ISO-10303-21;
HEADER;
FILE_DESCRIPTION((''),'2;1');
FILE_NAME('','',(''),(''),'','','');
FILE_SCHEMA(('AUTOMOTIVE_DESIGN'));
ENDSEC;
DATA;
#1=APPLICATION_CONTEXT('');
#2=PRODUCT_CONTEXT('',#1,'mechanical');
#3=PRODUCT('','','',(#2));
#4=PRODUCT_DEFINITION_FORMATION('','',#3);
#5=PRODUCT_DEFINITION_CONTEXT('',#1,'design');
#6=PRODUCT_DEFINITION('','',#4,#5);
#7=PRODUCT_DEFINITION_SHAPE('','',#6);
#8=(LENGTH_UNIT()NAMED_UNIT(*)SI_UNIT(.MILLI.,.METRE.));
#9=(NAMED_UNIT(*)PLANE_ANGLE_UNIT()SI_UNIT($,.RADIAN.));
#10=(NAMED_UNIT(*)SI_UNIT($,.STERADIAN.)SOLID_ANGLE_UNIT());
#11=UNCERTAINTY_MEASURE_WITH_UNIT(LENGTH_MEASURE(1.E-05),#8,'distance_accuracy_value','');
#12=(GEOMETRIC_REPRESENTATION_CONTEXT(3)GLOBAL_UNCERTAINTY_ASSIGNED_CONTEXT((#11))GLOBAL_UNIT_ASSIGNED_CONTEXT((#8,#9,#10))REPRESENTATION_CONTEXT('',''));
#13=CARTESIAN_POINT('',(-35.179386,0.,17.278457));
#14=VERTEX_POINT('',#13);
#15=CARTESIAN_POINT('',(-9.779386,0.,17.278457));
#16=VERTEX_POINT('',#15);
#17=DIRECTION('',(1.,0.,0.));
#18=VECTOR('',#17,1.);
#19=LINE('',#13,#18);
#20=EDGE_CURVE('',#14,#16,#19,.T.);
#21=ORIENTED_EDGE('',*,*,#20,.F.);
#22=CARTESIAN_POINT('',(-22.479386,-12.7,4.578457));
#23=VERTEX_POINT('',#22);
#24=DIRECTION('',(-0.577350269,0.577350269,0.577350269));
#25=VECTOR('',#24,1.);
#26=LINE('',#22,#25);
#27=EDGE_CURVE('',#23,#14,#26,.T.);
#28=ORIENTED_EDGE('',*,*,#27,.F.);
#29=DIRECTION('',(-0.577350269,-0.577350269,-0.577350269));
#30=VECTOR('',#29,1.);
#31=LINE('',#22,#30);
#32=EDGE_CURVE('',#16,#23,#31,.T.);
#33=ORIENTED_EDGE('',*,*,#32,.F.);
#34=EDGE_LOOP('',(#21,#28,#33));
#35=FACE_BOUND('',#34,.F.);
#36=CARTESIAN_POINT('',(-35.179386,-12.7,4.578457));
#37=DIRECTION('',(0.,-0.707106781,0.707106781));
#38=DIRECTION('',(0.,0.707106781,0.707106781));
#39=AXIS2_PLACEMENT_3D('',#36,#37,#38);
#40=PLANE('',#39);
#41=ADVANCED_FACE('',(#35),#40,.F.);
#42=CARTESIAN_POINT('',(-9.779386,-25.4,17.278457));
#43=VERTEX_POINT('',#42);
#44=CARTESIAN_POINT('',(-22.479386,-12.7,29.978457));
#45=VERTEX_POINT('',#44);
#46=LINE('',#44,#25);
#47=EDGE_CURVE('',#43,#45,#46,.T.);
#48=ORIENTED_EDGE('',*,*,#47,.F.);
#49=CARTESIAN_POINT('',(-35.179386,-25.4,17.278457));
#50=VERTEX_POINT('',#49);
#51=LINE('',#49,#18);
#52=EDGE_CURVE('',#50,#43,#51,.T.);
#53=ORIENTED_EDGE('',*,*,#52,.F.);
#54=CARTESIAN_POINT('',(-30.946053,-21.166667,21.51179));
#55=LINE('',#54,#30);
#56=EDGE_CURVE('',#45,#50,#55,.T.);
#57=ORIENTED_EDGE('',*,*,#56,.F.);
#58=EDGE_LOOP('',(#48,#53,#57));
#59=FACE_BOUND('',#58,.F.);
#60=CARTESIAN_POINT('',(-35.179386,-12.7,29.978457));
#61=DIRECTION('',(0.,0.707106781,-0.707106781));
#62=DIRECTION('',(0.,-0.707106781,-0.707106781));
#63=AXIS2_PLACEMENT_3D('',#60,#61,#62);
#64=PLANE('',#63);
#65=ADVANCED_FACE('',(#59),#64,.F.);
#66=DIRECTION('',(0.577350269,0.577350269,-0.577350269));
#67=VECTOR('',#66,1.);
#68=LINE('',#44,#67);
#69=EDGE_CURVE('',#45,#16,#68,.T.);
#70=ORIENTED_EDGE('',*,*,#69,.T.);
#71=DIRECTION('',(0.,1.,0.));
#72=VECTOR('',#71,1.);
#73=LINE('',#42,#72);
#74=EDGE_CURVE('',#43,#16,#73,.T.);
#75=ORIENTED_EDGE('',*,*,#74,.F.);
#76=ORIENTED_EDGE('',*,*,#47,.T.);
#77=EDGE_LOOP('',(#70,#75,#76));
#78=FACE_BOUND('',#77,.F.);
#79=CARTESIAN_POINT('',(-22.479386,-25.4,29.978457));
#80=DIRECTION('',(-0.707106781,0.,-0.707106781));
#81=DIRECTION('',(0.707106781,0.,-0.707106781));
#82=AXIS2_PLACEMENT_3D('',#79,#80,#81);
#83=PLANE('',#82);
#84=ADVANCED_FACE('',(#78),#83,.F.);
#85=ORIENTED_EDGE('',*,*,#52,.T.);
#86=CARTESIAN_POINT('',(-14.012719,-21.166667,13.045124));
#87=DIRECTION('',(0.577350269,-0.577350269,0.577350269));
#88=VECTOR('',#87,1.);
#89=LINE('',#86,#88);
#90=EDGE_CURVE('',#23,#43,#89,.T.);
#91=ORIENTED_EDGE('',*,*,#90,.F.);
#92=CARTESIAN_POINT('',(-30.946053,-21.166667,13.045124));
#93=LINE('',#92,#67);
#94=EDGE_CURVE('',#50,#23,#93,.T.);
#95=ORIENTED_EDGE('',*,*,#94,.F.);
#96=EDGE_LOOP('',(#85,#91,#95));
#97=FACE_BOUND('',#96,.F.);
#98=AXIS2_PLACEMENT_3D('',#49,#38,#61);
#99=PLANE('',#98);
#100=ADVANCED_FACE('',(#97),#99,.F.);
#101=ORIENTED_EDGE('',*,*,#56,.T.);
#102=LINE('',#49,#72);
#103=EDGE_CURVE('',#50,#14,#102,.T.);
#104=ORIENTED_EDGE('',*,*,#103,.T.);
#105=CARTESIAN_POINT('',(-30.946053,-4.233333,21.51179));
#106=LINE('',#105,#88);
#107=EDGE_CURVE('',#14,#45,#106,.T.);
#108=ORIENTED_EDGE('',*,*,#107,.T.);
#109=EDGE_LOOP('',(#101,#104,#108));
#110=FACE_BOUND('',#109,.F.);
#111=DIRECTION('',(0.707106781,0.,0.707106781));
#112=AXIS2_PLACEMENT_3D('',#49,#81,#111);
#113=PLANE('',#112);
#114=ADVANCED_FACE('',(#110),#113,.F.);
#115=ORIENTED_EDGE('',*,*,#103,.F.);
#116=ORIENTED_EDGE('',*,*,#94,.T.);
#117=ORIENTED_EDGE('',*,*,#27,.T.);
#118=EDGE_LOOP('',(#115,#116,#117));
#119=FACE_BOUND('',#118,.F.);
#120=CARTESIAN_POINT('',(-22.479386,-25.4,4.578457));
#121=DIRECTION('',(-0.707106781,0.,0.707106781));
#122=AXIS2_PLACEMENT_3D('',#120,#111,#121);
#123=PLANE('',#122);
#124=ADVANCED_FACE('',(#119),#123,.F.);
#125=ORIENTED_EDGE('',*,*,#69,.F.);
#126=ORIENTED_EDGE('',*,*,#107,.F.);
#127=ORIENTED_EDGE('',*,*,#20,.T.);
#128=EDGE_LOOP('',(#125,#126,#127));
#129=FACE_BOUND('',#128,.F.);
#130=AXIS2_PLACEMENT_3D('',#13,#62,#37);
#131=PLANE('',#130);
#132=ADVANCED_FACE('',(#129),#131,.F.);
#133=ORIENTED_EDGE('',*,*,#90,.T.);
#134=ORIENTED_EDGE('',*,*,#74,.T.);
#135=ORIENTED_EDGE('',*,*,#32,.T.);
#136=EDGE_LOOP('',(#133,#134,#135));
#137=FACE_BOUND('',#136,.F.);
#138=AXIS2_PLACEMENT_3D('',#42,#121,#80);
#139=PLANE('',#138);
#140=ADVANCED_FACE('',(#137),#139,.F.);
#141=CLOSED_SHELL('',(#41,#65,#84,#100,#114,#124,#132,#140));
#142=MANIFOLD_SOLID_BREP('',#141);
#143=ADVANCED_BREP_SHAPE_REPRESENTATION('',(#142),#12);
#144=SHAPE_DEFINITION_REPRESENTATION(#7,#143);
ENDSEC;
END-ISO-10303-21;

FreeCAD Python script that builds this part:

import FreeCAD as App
import Part
import Sketcher

V = App.Vector
Q = App.Units.Quantity

doc = App.newDocument("Part")
params = doc.addObject("Spreadsheet::Sheet", "Params")
for row, (alias, value) in enumerate([
    ("sketch1_width", "1 in"),
    ("pad1_length", "1 in"),
    ("sketch2_width", "0.5 in"),
    ("pocket1_length", "1 in"),
    ("sketch3_width", "0.5 in"),
    ("pocket2_length", "1 in"),
], start=1):
    params.set(f"A{row}", alias)
    params.set(f"B{row}", "=" + value)
    params.setAlias(f"B{row}", alias)

body = doc.addObject("PartDesign::Body", "Body")

sketch1 = body.newObject("Sketcher::SketchObject", "Sketch")
sketch1.AttachmentSupport = (doc.getObject("XZ_Plane"), [""])
sketch1.MapMode = "FlatFace"
sketch1.addGeometry([
    Part.LineSegment(V(-35, 30, 0), V(-35, 5, 0)),
    Part.LineSegment(V(-35, 5, 0), V(-10, 5, 0)),
    Part.LineSegment(V(-10, 5, 0), V(-10, 30, 0)),
    Part.LineSegment(V(-10, 30, 0), V(-35, 30, 0)),
], False)
sketch1.addConstraint([
    Sketcher.Constraint("Coincident", 0, 2, 1, 1),
    Sketcher.Constraint("Coincident", 1, 2, 2, 1),
    Sketcher.Constraint("Coincident", 2, 2, 3, 1),
    Sketcher.Constraint("Coincident", 3, 2, 0, 1),
    Sketcher.Constraint("Vertical", 0),
    Sketcher.Constraint("Horizontal", 1),
    Sketcher.Constraint("Vertical", 2),
    Sketcher.Constraint("Horizontal", 3),
    Sketcher.Constraint("Equal", 3, 0),
    Sketcher.Constraint("DistanceX", 1, 1, 1, 2, Q("1 in")),
    Sketcher.Constraint("DistanceX", 0, 2, -1, 1, 35.179386),
    Sketcher.Constraint("DistanceY", -1, 1, 0, 2, 4.578457),
])
sketch1.setExpression("Constraints[9]", "Params.sketch1_width")
pad1 = body.newObject("PartDesign::Pad", "Pad")
pad1.Profile = sketch1
pad1.setExpression("Length", "Params.pad1_length")

sketch2 = body.newObject("Sketcher::SketchObject", "Sketch001")
sketch2.AttachmentSupport = (doc.getObject("YZ_Plane"), [""])
sketch2.MapMode = "FlatFace"
sketch2.AttachmentOffset = App.Placement(V(0, 0, -35.179386), App.Rotation())
sketch2.addGeometry([
    Part.LineSegment(V(-25, 30, 0), V(-13, 30, 0)),
    Part.LineSegment(V(-13, 30, 0), V(-25, 17, 0)),
    Part.LineSegment(V(-25, 17, 0), V(-25, 30, 0)),
    Part.LineSegment(V(0, 17, 0), V(-13, 30, 0)),
    Part.LineSegment(V(-13, 30, 0), V(0, 30, 0)),
    Part.LineSegment(V(0, 30, 0), V(0, 17, 0)),
    Part.LineSegment(V(-13, 5, 0), V(0, 17, 0)),
    Part.LineSegment(V(0, 17, 0), V(0, 5, 0)),
    Part.LineSegment(V(0, 5, 0), V(-13, 5, 0)),
    Part.LineSegment(V(-25, 5, 0), V(-25, 17, 0)),
    Part.LineSegment(V(-25, 17, 0), V(-13, 5, 0)),
    Part.LineSegment(V(-13, 5, 0), V(-25, 5, 0)),
], False)
sketch2.addConstraint([
    Sketcher.Constraint("Coincident", 0, 2, 1, 1),
    Sketcher.Constraint("Coincident", 1, 2, 2, 1),
    Sketcher.Constraint("Coincident", 2, 2, 0, 1),
    Sketcher.Constraint("Coincident", 3, 2, 4, 1),
    Sketcher.Constraint("Coincident", 4, 2, 5, 1),
    Sketcher.Constraint("Coincident", 5, 2, 3, 1),
    Sketcher.Constraint("Coincident", 6, 2, 7, 1),
    Sketcher.Constraint("Coincident", 7, 2, 8, 1),
    Sketcher.Constraint("Coincident", 8, 2, 6, 1),
    Sketcher.Constraint("Coincident", 9, 2, 10, 1),
    Sketcher.Constraint("Coincident", 10, 2, 11, 1),
    Sketcher.Constraint("Coincident", 11, 2, 9, 1),
    Sketcher.Constraint("Horizontal", 0),
    Sketcher.Constraint("Vertical", 2),
    Sketcher.Constraint("Horizontal", 4),
    Sketcher.Constraint("Vertical", 5),
    Sketcher.Constraint("Vertical", 7),
    Sketcher.Constraint("Horizontal", 8),
    Sketcher.Constraint("Vertical", 9),
    Sketcher.Constraint("Horizontal", 11),
    Sketcher.Constraint("Coincident", 3, 2, 0, 2),
    Sketcher.Constraint("Coincident", 6, 2, 5, 2),
    Sketcher.Constraint("Coincident", 9, 2, 1, 2),
    Sketcher.Constraint("Coincident", 10, 2, 8, 2),
    Sketcher.Constraint("PointOnObject", 4, 2, -2),
    Sketcher.Constraint("Perpendicular", 1, 3),
    Sketcher.Constraint("Perpendicular", 3, 6),
    Sketcher.Constraint("Perpendicular", 6, 10),
    Sketcher.Constraint("Horizontal", 1, 2, 5, 2),
    Sketcher.Constraint("Vertical", 3, 2, 8, 2),
    Sketcher.Constraint("DistanceX", 0, 1, 0, 2, Q("0.5 in")),
    Sketcher.Constraint("DistanceY", -1, 1, 0, 2, 29.978457),
])
sketch2.setExpression("Constraints[30]", "Params.sketch2_width")
pocket1 = body.newObject("PartDesign::Pocket", "Pocket")
pocket1.Profile = sketch2
pocket1.setExpression("Length", "Params.pocket1_length")
pocket1.Reversed = True

sketch3 = body.newObject("Sketcher::SketchObject", "Sketch002")
sketch3.AttachmentSupport = (doc.getObject("XZ_Plane"), [""])
sketch3.MapMode = "FlatFace"
sketch3.AttachmentOffset = App.Placement(V(0, 0, 1 * 25.4), App.Rotation())
sketch3.addGeometry([
    Part.LineSegment(V(-10, 30, 0), V(-22, 30, 0)),
    Part.LineSegment(V(-22, 30, 0), V(-10, 17, 0)),
    Part.LineSegment(V(-10, 17, 0), V(-10, 30, 0)),
    Part.LineSegment(V(-10, 5, 0), V(-10, 17, 0)),
    Part.LineSegment(V(-10, 17, 0), V(-22, 5, 0)),
    Part.LineSegment(V(-22, 5, 0), V(-10, 5, 0)),
    Part.LineSegment(V(-22, 5, 0), V(-35, 17, 0)),
    Part.LineSegment(V(-35, 17, 0), V(-35, 5, 0)),
    Part.LineSegment(V(-35, 5, 0), V(-22, 5, 0)),
    Part.LineSegment(V(-35, 17, 0), V(-22, 30, 0)),
    Part.LineSegment(V(-22, 30, 0), V(-35, 30, 0)),
    Part.LineSegment(V(-35, 30, 0), V(-35, 17, 0)),
], False)
sketch3.addConstraint([
    Sketcher.Constraint("Coincident", 0, 2, 1, 1),
    Sketcher.Constraint("Coincident", 1, 2, 2, 1),
    Sketcher.Constraint("Coincident", 2, 2, 0, 1),
    Sketcher.Constraint("Coincident", 3, 2, 4, 1),
    Sketcher.Constraint("Coincident", 4, 2, 5, 1),
    Sketcher.Constraint("Coincident", 5, 2, 3, 1),
    Sketcher.Constraint("Coincident", 6, 2, 7, 1),
    Sketcher.Constraint("Coincident", 7, 2, 8, 1),
    Sketcher.Constraint("Coincident", 8, 2, 6, 1),
    Sketcher.Constraint("Coincident", 9, 2, 10, 1),
    Sketcher.Constraint("Coincident", 10, 2, 11, 1),
    Sketcher.Constraint("Coincident", 11, 2, 9, 1),
    Sketcher.Constraint("Horizontal", 0),
    Sketcher.Constraint("Vertical", 2),
    Sketcher.Constraint("Vertical", 3),
    Sketcher.Constraint("Horizontal", 5),
    Sketcher.Constraint("Vertical", 7),
    Sketcher.Constraint("Horizontal", 8),
    Sketcher.Constraint("Horizontal", 10),
    Sketcher.Constraint("Vertical", 11),
    Sketcher.Constraint("Coincident", 3, 2, 1, 2),
    Sketcher.Constraint("Coincident", 8, 2, 4, 2),
    Sketcher.Constraint("Coincident", 9, 2, 0, 2),
    Sketcher.Constraint("Coincident", 11, 2, 6, 2),
    Sketcher.Constraint("Perpendicular", 1, 4),
    Sketcher.Constraint("Perpendicular", 4, 6),
    Sketcher.Constraint("Perpendicular", 6, 9),
    Sketcher.Constraint("Horizontal", 3, 2, 6, 2),
    Sketcher.Constraint("Vertical", 0, 2, 4, 2),
    Sketcher.Constraint("DistanceX", 0, 2, 0, 1, Q("0.5 in")),
    Sketcher.Constraint("DistanceX", 0, 2, -1, 1, 22.479386),
    Sketcher.Constraint("DistanceY", -1, 1, 0, 2, 29.978457),
])
sketch3.setExpression("Constraints[29]", "Params.sketch3_width")
pocket2 = body.newObject("PartDesign::Pocket", "Pocket001")
pocket2.Profile = sketch3
pocket2.setExpression("Length", "Params.pocket2_length")

doc.recompute()
